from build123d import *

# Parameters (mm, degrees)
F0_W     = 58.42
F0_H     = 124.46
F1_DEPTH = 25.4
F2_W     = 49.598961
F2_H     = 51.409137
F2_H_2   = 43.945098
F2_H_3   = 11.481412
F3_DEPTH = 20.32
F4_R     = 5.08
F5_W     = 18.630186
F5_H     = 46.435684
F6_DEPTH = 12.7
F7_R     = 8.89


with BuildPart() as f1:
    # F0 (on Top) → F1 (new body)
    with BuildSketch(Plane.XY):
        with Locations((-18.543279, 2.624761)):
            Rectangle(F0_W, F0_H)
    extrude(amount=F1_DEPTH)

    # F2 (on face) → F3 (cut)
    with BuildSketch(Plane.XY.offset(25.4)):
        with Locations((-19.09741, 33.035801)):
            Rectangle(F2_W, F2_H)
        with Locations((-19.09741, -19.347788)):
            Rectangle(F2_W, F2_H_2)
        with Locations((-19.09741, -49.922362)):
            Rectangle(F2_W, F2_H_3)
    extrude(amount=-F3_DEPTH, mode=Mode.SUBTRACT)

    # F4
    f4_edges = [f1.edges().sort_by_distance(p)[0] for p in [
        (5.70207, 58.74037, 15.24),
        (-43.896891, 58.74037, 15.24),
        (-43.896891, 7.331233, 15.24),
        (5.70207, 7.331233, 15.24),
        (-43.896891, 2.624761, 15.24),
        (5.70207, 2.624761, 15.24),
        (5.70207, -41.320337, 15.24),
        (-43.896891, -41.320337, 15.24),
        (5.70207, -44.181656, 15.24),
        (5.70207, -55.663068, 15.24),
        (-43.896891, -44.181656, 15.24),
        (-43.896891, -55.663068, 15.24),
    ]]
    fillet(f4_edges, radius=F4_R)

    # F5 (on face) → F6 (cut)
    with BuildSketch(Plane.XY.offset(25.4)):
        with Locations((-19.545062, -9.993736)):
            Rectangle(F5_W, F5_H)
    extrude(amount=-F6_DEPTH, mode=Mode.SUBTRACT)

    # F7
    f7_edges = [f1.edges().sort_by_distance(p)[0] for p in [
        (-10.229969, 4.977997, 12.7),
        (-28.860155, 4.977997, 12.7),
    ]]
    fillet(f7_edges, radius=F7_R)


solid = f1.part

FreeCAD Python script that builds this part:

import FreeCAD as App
import Part
import Sketcher
Q = App.Units.Quantity


def edges_at(feature, points):
    """Names of the edges that pass closest to the given points."""
    edges = feature.Shape.Edges
    near = lambda p: min(range(len(edges)), key=lambda i: edges[i].distToShape(Part.Vertex(*p))[0])
    return sorted({f"Edge{near(p) + 1}" for p in points})

doc = App.newDocument("Part")
params = doc.addObject("Spreadsheet::Sheet", "Params")
for row, (alias, value) in enumerate([
    ("sketch1_width", "2.3 in"),
    ("sketch1_height", "4.9 in"),
    ("pad1_length", "1 in"),
    ("pocket1_length", "0.8 in"),
    ("fillet_radius", "0.2 in"),
    ("pocket2_length", "0.5 in"),
    ("fillet2_radius", "0.35 in"),
], start=1):
    params.set(f"A{row}", alias)
    params.set(f"B{row}", "=" + value)
    params.setAlias(f"B{row}", alias)

body = doc.addObject("PartDesign::Body", "Body")

# Sketch on XY plane
sketch1 = body.newObject("Sketcher::SketchObject", "Sketch")
sketch1.AttachmentSupport = (doc.getObject("XY_Plane"), [""])
sketch1.MapMode = "FlatFace"
sketch1.addGeometry(Part.LineSegment(App.Vector(-47.753279, 64.854761, 0), App.Vector(-47.753279, -59.605239, 0)), False)
sketch1.addGeometry(Part.LineSegment(App.Vector(-47.753279, -59.605239, 0), App.Vector(10.666721, -59.605239, 0)), False)
sketch1.addGeometry(Part.LineSegment(App.Vector(10.666721, -59.605239, 0), App.Vector(10.666721, 64.854761, 0)), False)
sketch1.addGeometry(Part.LineSegment(App.Vector(10.666721, 64.854761, 0), App.Vector(-47.753279, 64.854761, 0)), False)
sketch1.addConstraint(Sketcher.Constraint("Coincident", 0, 2, 1, 1))
sketch1.addConstraint(Sketcher.Constraint("Coincident", 1, 2, 2, 1))
sketch1.addConstraint(Sketcher.Constraint("Coincident", 2, 2, 3, 1))
sketch1.addConstraint(Sketcher.Constraint("Coincident", 3, 2, 0, 1))
sketch1.addConstraint(Sketcher.Constraint("Vertical", 0))
sketch1.addConstraint(Sketcher.Constraint("Horizontal", 1))
sketch1.addConstraint(Sketcher.Constraint("Vertical", 2))
sketch1.addConstraint(Sketcher.Constraint("Horizontal", 3))
sketch1.addConstraint(Sketcher.Constraint("DistanceX", 1, 1, 1, 2, Q("2.3 in")))
sketch1.addConstraint(Sketcher.Constraint("DistanceY", 0, 2, 0, 1, Q("4.9 in")))
sketch1.addConstraint(Sketcher.Constraint("DistanceX", 0, 2, -1, 1, 47.753279))
sketch1.addConstraint(Sketcher.Constraint("DistanceY", 0, 2, -1, 1, 59.605239))
sketch1.setExpression("Constraints[8]", "Params.sketch1_width")
sketch1.setExpression("Constraints[9]", "Params.sketch1_height")
pad1 = body.newObject("PartDesign::Pad", "Pad")
pad1.Profile = sketch1
pad1.setExpression("Length", "Params.pad1_length")

# Sketch on XY plane
sketch2 = body.newObject("Sketcher::SketchObject", "Sketch001")
sketch2.AttachmentSupport = (doc.getObject("XY_Plane"), [""])
sketch2.MapMode = "FlatFace"
sketch2.AttachmentOffset = App.Placement(App.Vector(0, 0, 1 * 25.4), App.Rotation())
sketch2.addGeometry(Part.LineSegment(App.Vector(-43.89689, 58.740369, 0), App.Vector(-43.89689, 7.331232, 0)), False)
sketch2.addGeometry(Part.LineSegment(App.Vector(-43.89689, 7.331232, 0), App.Vector(5.70207, 7.331232, 0)), False)
sketch2.addGeometry(Part.LineSegment(App.Vector(5.70207, 7.331232, 0), App.Vector(5.70207, 58.740369, 0)), False)
sketch2.addGeometry(Part.LineSegment(App.Vector(5.70207, 58.740369, 0), App.Vector(-43.89689, 58.740369, 0)), False)
sketch2.addGeometry(Part.LineSegment(App.Vector(-43.89689, 2.624761, 0), App.Vector(-43.89689, -41.320337, 0)), False)
sketch2.addGeometry(Part.LineSegment(App.Vector(-43.89689, -41.320337, 0), App.Vector(5.70207, -41.320337, 0)), False)
sketch2.addGeometry(Part.LineSegment(App.Vector(5.70207, -41.320337, 0), App.Vector(5.70207, 2.624761, 0)), False)
sketch2.addGeometry(Part.LineSegment(App.Vector(5.70207, 2.624761, 0), App.Vector(-43.89689, 2.624761, 0)), False)
sketch2.addGeometry(Part.LineSegment(App.Vector(-43.89689, -44.181656, 0), App.Vector(-43.89689, -55.663068, 0)), False)
sketch2.addGeometry(Part.LineSegment(App.Vector(-43.89689, -55.663068, 0), App.Vector(5.70207, -55.663068, 0)), False)
sketch2.addGeometry(Part.LineSegment(App.Vector(5.70207, -55.663068, 0), App.Vector(5.70207, -44.181656, 0)), False)
sketch2.addGeometry(Part.LineSegment(App.Vector(5.70207, -44.181656, 0), App.Vector(-43.89689, -44.181656, 0)), False)
sketch2.addConstraint(Sketcher.Constraint("Coincident", 0, 2, 1, 1))
sketch2.addConstraint(Sketcher.Constraint("Coincident", 1, 2, 2, 1))
sketch2.addConstraint(Sketcher.Constraint("Coincident", 2, 2, 3, 1))
sketch2.addConstraint(Sketcher.Constraint("Coincident", 3, 2, 0, 1))
sketch2.addConstraint(Sketcher.Constraint("Coincident", 4, 2, 5, 1))
sketch2.addConstraint(Sketcher.Constraint("Coincident", 5, 2, 6, 1))
sketch2.addConstraint(Sketcher.Constraint("Coincident", 6, 2, 7, 1))
sketch2.addConstraint(Sketcher.Constraint("Coincident", 7, 2, 4, 1))
sketch2.addConstraint(Sketcher.Constraint("Coincident", 8, 2, 9, 1))
sketch2.addConstraint(Sketcher.Constraint("Coincident", 9, 2, 10, 1))
sketch2.addConstraint(Sketcher.Constraint("Coincident", 10, 2, 11, 1))
sketch2.addConstraint(Sketcher.Constraint("Coincident", 11, 2, 8, 1))
sketch2.addConstraint(Sketcher.Constraint("Vertical", 0))
sketch2.addConstraint(Sketcher.Constraint("Horizontal", 1))
sketch2.addConstraint(Sketcher.Constraint("Vertical", 2))
sketch2.addConstraint(Sketcher.Constraint("Horizontal", 3))
sketch2.addConstraint(Sketcher.Constraint("Vertical", 4))
sketch2.addConstraint(Sketcher.Constraint("Horizontal", 5))
sketch2.addConstraint(Sketcher.Constraint("Vertical", 6))
sketch2.addConstraint(Sketcher.Constraint("Horizontal", 7))
sketch2.addConstraint(Sketcher.Constraint("Vertical", 8))
sketch2.addConstraint(Sketcher.Constraint("Horizontal", 9))
sketch2.addConstraint(Sketcher.Constraint("Vertical", 10))
sketch2.addConstraint(Sketcher.Constraint("Horizontal", 11))
sketch2.addConstraint(Sketcher.Constraint("Vertical", 3, 2, 4, 2))
sketch2.addConstraint(Sketcher.Constraint("Vertical", 2, 2, 5, 2))
sketch2.addConstraint(Sketcher.Constraint("Vertical", 7, 2, 8, 2))
sketch2.addConstraint(Sketcher.Constraint("Vertical", 6, 2, 9, 2))
sketch2.addConstraint(Sketcher.Constraint("DistanceY", 4, 2, 4, 1, 43.945098))
sketch2.addConstraint(Sketcher.Constraint("DistanceX", 1, 1, 1, 2, 49.598961))
sketch2.addConstraint(Sketcher.Constraint("DistanceY", 8, 2, 0, 2, 62.994301))
sketch2.addConstraint(Sketcher.Constraint("DistanceY", 0, 2, 0, 1, 51.409137))
sketch2.addConstraint(Sketcher.Constraint("DistanceY", 8, 2, 8, 1, 11.481412))
sketch2.addConstraint(Sketcher.Constraint("DistanceX", 0, 2, -1, 1, 43.89689))
sketch2.addConstraint(Sketcher.Constraint("DistanceY", -1, 1, 2, 2, 58.740369))
sketch2.addConstraint(Sketcher.Constraint("DistanceY", -1, 1, 6, 2, 2.624761))
pocket1 = body.newObject("PartDesign::Pocket", "Pocket")
pocket1.Profile = sketch2
pocket1.setExpression("Length", "Params.pocket1_length")
doc.recompute()

fillet = body.newObject("PartDesign::Fillet", "Fillet")
fillet.Base = (pocket1, edges_at(pocket1, [
    (5.702, 58.74, 15.24),
    (-43.897, 58.74, 15.24),
    (-43.897, 7.331, 15.24),
    (5.702, 7.331, 15.24),
    (-43.897, 2.625, 15.24),
    (5.702, 2.625, 15.24),
    (5.702, -41.32, 15.24),
    (-43.897, -41.32, 15.24),
    (5.702, -44.182, 15.24),
    (5.702, -55.663, 15.24),
    (-43.897, -44.182, 15.24),
    (-43.897, -55.663, 15.24),
]))
fillet.setExpression("Radius", "Params.fillet_radius")

# Sketch on XY plane
sketch3 = body.newObject("Sketcher::SketchObject", "Sketch002")
sketch3.AttachmentSupport = (doc.getObject("XY_Plane"), [""])
sketch3.MapMode = "FlatFace"
sketch3.AttachmentOffset = App.Placement(App.Vector(0, 0, 1 * 25.4), App.Rotation())
sketch3.addGeometry(Part.LineSegment(App.Vector(-28.860155, 13.224106, 0), App.Vector(-28.860155, -33.211578, 0)), False)
sketch3.addGeometry(Part.LineSegment(App.Vector(-28.860155, -33.211578, 0), App.Vector(-10.229969, -33.211578, 0)), False)
sketch3.addGeometry(Part.LineSegment(App.Vector(-10.229969, -33.211578, 0), App.Vector(-10.229969, 13.224106, 0)), False)
sketch3.addGeometry(Part.LineSegment(App.Vector(-10.229969, 13.224106, 0), App.Vector(-28.860155, 13.224106, 0)), False)
sketch3.addConstraint(Sketcher.Constraint("Coincident", 0, 2, 1, 1))
sketch3.addConstraint(Sketcher.Constraint("Coincident", 1, 2, 2, 1))
sketch3.addConstraint(Sketcher.Constraint("Coincident", 2, 2, 3, 1))
sketch3.addConstraint(Sketcher.Constraint("Coincident", 3, 2, 0, 1))
sketch3.addConstraint(Sketcher.Constraint("Vertical", 0))
sketch3.addConstraint(Sketcher.Constraint("Horizontal", 1))
sketch3.addConstraint(Sketcher.Constraint("Vertical", 2))
sketch3.addConstraint(Sketcher.Constraint("Horizontal", 3))
sketch3.addConstraint(Sketcher.Constraint("DistanceX", 1, 1, 1, 2, 18.630186))
sketch3.addConstraint(Sketcher.Constraint("DistanceY", 0, 2, 0, 1, 46.435684))
sketch3.addConstraint(Sketcher.Constraint("DistanceY", 0, 2, -1, 1, 33.211578))
sketch3.addConstraint(Sketcher.Constraint("DistanceX", 1, 2, -1, 1, 10.229969))
pocket2 = body.newObject("PartDesign::Pocket", "Pocket001")
pocket2.Profile = sketch3
pocket2.setExpression("Length", "Params.pocket2_length")
doc.recompute()

fillet2 = body.newObject("PartDesign::Fillet", "Fillet001")
fillet2.Base = (pocket2, edges_at(pocket2, [(-10.23, 4.978, 12.7), (-28.86, 4.978, 12.7)]))
fillet2.setExpression("Radius", "Params.fillet2_radius")

doc.recompute()
